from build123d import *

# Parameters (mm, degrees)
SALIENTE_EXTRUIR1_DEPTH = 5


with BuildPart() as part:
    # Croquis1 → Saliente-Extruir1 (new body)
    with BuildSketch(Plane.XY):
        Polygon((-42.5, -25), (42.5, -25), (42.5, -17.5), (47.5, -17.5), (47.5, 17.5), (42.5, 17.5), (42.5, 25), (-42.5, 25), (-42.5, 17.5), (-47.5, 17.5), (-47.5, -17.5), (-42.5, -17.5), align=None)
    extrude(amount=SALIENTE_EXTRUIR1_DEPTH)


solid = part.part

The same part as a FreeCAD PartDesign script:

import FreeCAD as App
import Part
import Sketcher

V = App.Vector
Q = App.Units.Quantity


def add_polygon(sketch, points):
    """Adds a closed chain of lines whose ends are joined by coincident constraints."""
    first, n = sketch.GeometryCount, len(points)
    for a, b in zip(points, points[1:] + points[:1]):
        sketch.addGeometry(Part.LineSegment(App.Vector(*a, 0), App.Vector(*b, 0)), False)
    for i in range(n):
        sketch.addConstraint(Sketcher.Constraint("Coincident", first + i, 2, first + (i + 1) % n, 1))

doc = App.newDocument("Part")
body = doc.addObject("PartDesign::Body", "Body")

sketch1 = doc.addObject("Sketcher::SketchObject", "Sketch")
body.addObject(sketch1)
sketch1.AttachmentSupport = (doc.XY_Plane, [""])
sketch1.MapMode = "FlatFace"
add_polygon(sketch1, [(-42.5, -25), (42.5, -25), (42.5, -17.5), (47.5, -17.5), (47.5, 17.5), (42.5, 17.5), (42.5, 25), (-42.5, 25), (-42.5, 17.5), (-47.5, 17.5), (-47.5, -17.5), (-42.5, -17.5)])
sketch1.addConstraint([
    Sketcher.Constraint("Horizontal", 0),
    Sketcher.Constraint("Vertical", 1),
    Sketcher.Constraint("Horizontal", 2),
    Sketcher.Constraint("Vertical", 3),
    Sketcher.Constraint("Horizontal", 4),
    Sketcher.Constraint("Vertical", 5),
    Sketcher.Constraint("Horizontal", 6),
    Sketcher.Constraint("Vertical", 7),
    Sketcher.Constraint("Horizontal", 8),
    Sketcher.Constraint("Vertical", 9),
    Sketcher.Constraint("Horizontal", 10),
    Sketcher.Constraint("Vertical", 11),
    Sketcher.Constraint("Symmetric", 0, 2, 6, 2, -1, 1),
    Sketcher.Constraint("Symmetric", 2, 2, 8, 2, -1, 1),
    Sketcher.Constraint("Symmetric", 4, 2, 10, 2, -1, 1),
    Sketcher.Constraint("Symmetric", 4, 2, 7, 2, -2),
    Sketcher.Constraint("DistanceX", 0, 1, 0, 2, Q("85 mm")),
    Sketcher.Constraint("DistanceX", 2, 1, 2, 2, Q("5 mm")),
    Sketcher.Constraint("DistanceY", 3, 1, 3, 2, Q("35 mm")),
    Sketcher.Constraint("DistanceY", 1, 1, 1, 2, Q("7.5 mm")),
])
pad1 = doc.addObject("PartDesign::Pad", "Pad")
body.addObject(pad1)
pad1.Profile = sketch1
pad1.Length = 5

doc.recompute()
